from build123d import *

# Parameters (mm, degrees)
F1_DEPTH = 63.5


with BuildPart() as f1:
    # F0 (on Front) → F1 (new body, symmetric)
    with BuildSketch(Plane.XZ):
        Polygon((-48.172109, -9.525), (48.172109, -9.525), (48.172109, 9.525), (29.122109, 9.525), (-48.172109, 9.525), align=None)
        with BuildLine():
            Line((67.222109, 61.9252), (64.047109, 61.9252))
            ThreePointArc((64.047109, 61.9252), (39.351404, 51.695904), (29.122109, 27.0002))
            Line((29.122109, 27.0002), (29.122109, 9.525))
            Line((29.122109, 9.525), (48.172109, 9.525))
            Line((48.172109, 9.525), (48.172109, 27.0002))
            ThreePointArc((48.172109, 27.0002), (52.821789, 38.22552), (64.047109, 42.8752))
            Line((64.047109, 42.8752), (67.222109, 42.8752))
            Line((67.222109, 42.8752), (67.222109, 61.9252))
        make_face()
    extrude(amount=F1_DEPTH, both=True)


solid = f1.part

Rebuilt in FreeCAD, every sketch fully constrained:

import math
import FreeCAD as App
import Part
import Sketcher
Q = App.Units.Quantity

doc = App.newDocument("Part")
body = doc.addObject("PartDesign::Body", "Body")

# Sketch on XZ plane
sketch1 = body.newObject("Sketcher::SketchObject", "Sketch")
sketch1.AttachmentSupport = (doc.getObject("XZ_Plane"), [""])
sketch1.MapMode = "FlatFace"
sketch1.addGeometry(Part.LineSegment(App.Vector(-48.2, -9.5, 0), App.Vector(48.2, -9.5, 0)), False)
sketch1.addGeometry(Part.LineSegment(App.Vector(48.2, -9.5, 0), App.Vector(48.2, 27, 0)), False)
sketch1.addGeometry(Part.ArcOfCircle(Part.Circle(App.Vector(64, 27, 0), App.Vector(0, 0, 1), 15.9), math.radians(90), math.radians(180)), False)
sketch1.addGeometry(Part.LineSegment(App.Vector(64, 42.9, 0), App.Vector(67.2, 42.9, 0)), False)
sketch1.addGeometry(Part.LineSegment(App.Vector(67.2, 42.9, 0), App.Vector(67.2, 61.9, 0)), False)
sketch1.addGeometry(Part.LineSegment(App.Vector(67.2, 61.9, 0), App.Vector(64, 61.9, 0)), False)
sketch1.addGeometry(Part.ArcOfCircle(Part.Circle(App.Vector(64, 27, 0), App.Vector(0, 0, 1), 34.9), math.radians(90), math.radians(180)), False)
sketch1.addGeometry(Part.LineSegment(App.Vector(29.1, 27, 0), App.Vector(29.1, 9.5, 0)), False)
sketch1.addGeometry(Part.LineSegment(App.Vector(29.1, 9.5, 0), App.Vector(-48.2, 9.5, 0)), False)
sketch1.addGeometry(Part.LineSegment(App.Vector(-48.2, 9.5, 0), App.Vector(-48.2, -9.5, 0)), False)
sketch1.addConstraint(Sketcher.Constraint("Coincident", 0, 2, 1, 1))
sketch1.addConstraint(Sketcher.Constraint("Tangent", 1, 2, 2, 2))
sketch1.addConstraint(Sketcher.Constraint("Tangent", 2, 1, 3, 1))
sketch1.addConstraint(Sketcher.Constraint("Coincident", 3, 2, 4, 1))
sketch1.addConstraint(Sketcher.Constraint("Coincident", 4, 2, 5, 1))
sketch1.addConstraint(Sketcher.Constraint("Tangent", 5, 2, 6, 1))
sketch1.addConstraint(Sketcher.Constraint("Tangent", 6, 2, 7, 1))
sketch1.addConstraint(Sketcher.Constraint("Coincident", 7, 2, 8, 1))
sketch1.addConstraint(Sketcher.Constraint("Coincident", 8, 2, 9, 1))
sketch1.addConstraint(Sketcher.Constraint("Coincident", 9, 2, 0, 1))
sketch1.addConstraint(Sketcher.Constraint("Horizontal", 0))
sketch1.addConstraint(Sketcher.Constraint("Vertical", 1))
sketch1.addConstraint(Sketcher.Constraint("Horizontal", 3))
sketch1.addConstraint(Sketcher.Constraint("Vertical", 4))
sketch1.addConstraint(Sketcher.Constraint("Horizontal", 5))
sketch1.addConstraint(Sketcher.Constraint("Vertical", 7))
sketch1.addConstraint(Sketcher.Constraint("Horizontal", 8))
sketch1.addConstraint(Sketcher.Constraint("Vertical", 9))
sketch1.addConstraint(Sketcher.Constraint("Coincident", 6, 3, 2, 3))
sketch1.addConstraint(Sketcher.Constraint("Symmetric", 0, 2, 8, 2, -1, 1))
sketch1.addConstraint(Sketcher.Constraint("Equal", 4, 9))
sketch1.addConstraint(Sketcher.Constraint("Radius", 2, Q("0.625 in")))
sketch1.addConstraint(Sketcher.Constraint("Radius", 6, Q("1.375 in")))
sketch1.addConstraint(Sketcher.Constraint("DistanceX", 3, 1, 3, 2, Q("0.125 in")))
sketch1.addConstraint(Sketcher.Constraint("DistanceY", 1, 1, 1, 2, Q("1.438 in")))
sketch1.addConstraint(Sketcher.Constraint("DistanceX", 8, 2, 8, 1, Q("77.294218 mm")))
pad1 = body.newObject("PartDesign::Pad", "Pad")
pad1.Profile = sketch1
pad1.Length = Q("5 in")
pad1.Midplane = True

doc.recompute()
